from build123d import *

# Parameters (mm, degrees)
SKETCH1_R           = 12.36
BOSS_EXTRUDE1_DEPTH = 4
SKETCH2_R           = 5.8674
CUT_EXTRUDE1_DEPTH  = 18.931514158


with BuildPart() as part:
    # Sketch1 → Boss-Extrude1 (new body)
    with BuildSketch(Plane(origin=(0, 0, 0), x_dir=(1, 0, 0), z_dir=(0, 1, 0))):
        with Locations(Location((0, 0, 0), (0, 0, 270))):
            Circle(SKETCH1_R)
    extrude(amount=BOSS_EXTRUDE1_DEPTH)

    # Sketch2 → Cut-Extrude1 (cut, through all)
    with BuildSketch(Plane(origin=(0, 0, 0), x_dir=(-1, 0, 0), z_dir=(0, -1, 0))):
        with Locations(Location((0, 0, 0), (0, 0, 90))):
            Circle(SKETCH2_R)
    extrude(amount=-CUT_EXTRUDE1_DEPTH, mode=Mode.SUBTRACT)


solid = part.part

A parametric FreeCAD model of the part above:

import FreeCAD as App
import Part
import Sketcher
Q = App.Units.Quantity

doc = App.newDocument("Part")
body = doc.addObject("PartDesign::Body", "Body")

sketch1 = body.newObject("Sketcher::SketchObject", "Sketch")
sketch1.AttachmentSupport = (doc.getObject("XZ_Plane"), [""])
sketch1.MapMode = "FlatFace"
sketch1.addGeometry(Part.Circle(App.Vector(0, 0, 0), App.Vector(0, 0, 1), 12), False)
sketch1.addConstraint([
    Sketcher.Constraint("Coincident", 0, 3, -1, 1),
    Sketcher.Constraint("Diameter", 0, Q("24.72 mm")),
])
pad1 = body.newObject("PartDesign::Pad", "Pad")
pad1.Profile = sketch1
pad1.Length = 4
pad1.Reversed = True

sketch2 = body.newObject("Sketcher::SketchObject", "Sketch001")
sketch2.AttachmentSupport = (doc.getObject("XZ_Plane"), [""])
sketch2.MapMode = "FlatFace"
sketch2.addGeometry(Part.Circle(App.Vector(0, 0, 0), App.Vector(0, 0, 1), 6), False)
sketch2.addConstraint([
    Sketcher.Constraint("Coincident", 0, 3, -1, 1),
    Sketcher.Constraint("Diameter", 0, Q("11.7348 mm")),
])
pocket1 = body.newObject("PartDesign::Pocket", "Pocket")
pocket1.Profile = sketch2
pocket1.Type = "ThroughAll"

doc.recompute()
